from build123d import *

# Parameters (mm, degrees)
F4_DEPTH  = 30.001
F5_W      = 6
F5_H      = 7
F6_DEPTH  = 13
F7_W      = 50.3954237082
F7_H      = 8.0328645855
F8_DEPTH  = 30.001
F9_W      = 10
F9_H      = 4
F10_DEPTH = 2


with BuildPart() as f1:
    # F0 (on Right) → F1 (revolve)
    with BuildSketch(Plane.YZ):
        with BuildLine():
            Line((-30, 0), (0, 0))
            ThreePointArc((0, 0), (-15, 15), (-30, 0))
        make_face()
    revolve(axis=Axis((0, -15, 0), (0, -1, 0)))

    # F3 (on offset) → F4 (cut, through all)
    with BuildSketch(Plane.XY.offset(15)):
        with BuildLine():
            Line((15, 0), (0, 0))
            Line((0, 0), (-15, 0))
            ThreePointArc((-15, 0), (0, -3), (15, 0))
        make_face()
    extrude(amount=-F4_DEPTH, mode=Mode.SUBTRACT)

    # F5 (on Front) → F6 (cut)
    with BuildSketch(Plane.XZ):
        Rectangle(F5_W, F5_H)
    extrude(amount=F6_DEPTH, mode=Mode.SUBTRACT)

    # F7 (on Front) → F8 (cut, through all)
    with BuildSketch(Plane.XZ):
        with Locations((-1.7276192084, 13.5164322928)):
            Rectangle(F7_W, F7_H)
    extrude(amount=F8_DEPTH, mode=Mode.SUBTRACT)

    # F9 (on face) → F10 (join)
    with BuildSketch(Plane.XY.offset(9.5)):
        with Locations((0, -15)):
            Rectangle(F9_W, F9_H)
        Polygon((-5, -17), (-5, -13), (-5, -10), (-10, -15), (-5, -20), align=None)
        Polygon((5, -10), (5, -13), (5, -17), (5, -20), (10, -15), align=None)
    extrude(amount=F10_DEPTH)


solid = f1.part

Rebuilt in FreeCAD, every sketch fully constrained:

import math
import FreeCAD as App
import Part
import Sketcher
from FreeCAD import Vector
Q = App.Units.Quantity


def add_polygon(sketch, points):
    """Adds a closed chain of lines whose ends are joined by coincident constraints."""
    first, n = sketch.GeometryCount, len(points)
    for a, b in zip(points, points[1:] + points[:1]):
        sketch.addGeometry(Part.LineSegment(App.Vector(*a, 0), App.Vector(*b, 0)), False)
    for i in range(n):
        sketch.addConstraint(Sketcher.Constraint("Coincident", first + i, 2, first + (i + 1) % n, 1))

doc = App.newDocument("Part")
body = doc.addObject("PartDesign::Body", "Body")

# Sketch on YZ plane
sketch1 = body.newObject("Sketcher::SketchObject", "Sketch")
sketch1.AttachmentSupport = (doc.getObject("YZ_Plane"), [""])
sketch1.MapMode = "FlatFace"
sketch1.addGeometry([
    Part.LineSegment(Vector(-30, 0, 0), Vector(0, 0, 0)),
    Part.ArcOfCircle(Part.Circle(Vector(-15, 0, 0), Vector(0, 0, 1), 15), math.radians(0), math.radians(180)),
], False)
sketch1.addConstraint([
    Sketcher.Constraint("Coincident", 0, 1, 1, 2),
    Sketcher.Constraint("Coincident", 1, 1, 0, 2),
    Sketcher.Constraint("Horizontal", 0),
    Sketcher.Constraint("Coincident", 1, 1, -1, 1),
    Sketcher.Constraint("PointOnObject", 1, 3, -1),
    Sketcher.Constraint("Radius", 1, Q("15 mm")),
])
revolution = body.newObject("PartDesign::Revolution", "Revolution")
revolution.Profile = sketch1
revolution.ReferenceAxis = (sketch1, ["H_Axis"])
revolution.Angle = 360

# Sketch on XY plane
sketch2 = body.newObject("Sketcher::SketchObject", "Sketch001")
sketch2.AttachmentSupport = (doc.getObject("XY_Plane"), [""])
sketch2.MapMode = "FlatFace"
sketch2.AttachmentOffset = App.Placement(Vector(0, 0, 15), App.Rotation())
sketch2.addGeometry([
    Part.LineSegment(Vector(15, 0, 0), Vector(-15, 0, 0)),
    Part.ArcOfCircle(Part.Circle(Vector(0, 36, 0), Vector(0, 0, 1), 39), math.radians(-113), math.radians(-67)),
], False)
sketch2.addConstraint([
    Sketcher.Constraint("Coincident", 0, 1, 1, 2),
    Sketcher.Constraint("Coincident", 1, 1, 0, 2),
    Sketcher.Constraint("Horizontal", 0),
    Sketcher.Constraint("Symmetric", 0, 1, 1, 1, -1, 1),
    Sketcher.Constraint("Radius", 1, Q("39 mm")),
    Sketcher.Constraint("DistanceX", 0, 2, 0, 1, Q("30 mm")),
])
pocket1 = body.newObject("PartDesign::Pocket", "Pocket")
pocket1.Profile = sketch2
pocket1.Type = "ThroughAll"

# Sketch on XZ plane
sketch3 = body.newObject("Sketcher::SketchObject", "Sketch002")
sketch3.AttachmentSupport = (doc.getObject("XZ_Plane"), [""])
sketch3.MapMode = "FlatFace"
add_polygon(sketch3, [(-3, 4), (-3, -4), (3, -4), (3, 4)])  # lines 0-3
sketch3.addConstraint([
    Sketcher.Constraint("Vertical", 0),
    Sketcher.Constraint("Horizontal", 1),
    Sketcher.Constraint("Vertical", 2),
    Sketcher.Constraint("Horizontal", 3),
    Sketcher.Constraint("Symmetric", 0, 2, 2, 2, -1, 1),
    Sketcher.Constraint("DistanceX", 1, 1, 1, 2, Q("6 mm")),
    Sketcher.Constraint("DistanceY", 0, 2, 0, 1, Q("7 mm")),
])
pocket2 = body.newObject("PartDesign::Pocket", "Pocket001")
pocket2.Profile = sketch3
pocket2.Length = 13
pocket2.Reversed = True

# Sketch on XZ plane
sketch4 = body.newObject("Sketcher::SketchObject", "Sketch003")
sketch4.AttachmentSupport = (doc.getObject("XZ_Plane"), [""])
sketch4.MapMode = "FlatFace"
add_polygon(sketch4, [(-27, 18), (-27, 10), (23, 10), (23, 18)])  # lines 0-3
sketch4.addConstraint([
    Sketcher.Constraint("Vertical", 0),
    Sketcher.Constraint("Horizontal", 1),
    Sketcher.Constraint("Vertical", 2),
    Sketcher.Constraint("Horizontal", 3),
    Sketcher.Constraint("DistanceY", -1, 1, 0, 2, Q("9.5 mm")),
    Sketcher.Constraint("DistanceX", 1, 1, 1, 2, Q("50.395424 mm")),
    Sketcher.Constraint("DistanceY", 0, 2, 0, 1, Q("8.032865 mm")),
    Sketcher.Constraint("DistanceX", 0, 2, -1, 1, Q("26.925331 mm")),
])
pocket3 = body.newObject("PartDesign::Pocket", "Pocket002")
pocket3.Profile = sketch4
pocket3.Type = "ThroughAll"
pocket3.Reversed = True

# Sketch on XY plane
sketch5 = body.newObject("Sketcher::SketchObject", "Sketch004")
sketch5.AttachmentSupport = (doc.getObject("XY_Plane"), [""])
sketch5.MapMode = "FlatFace"
sketch5.AttachmentOffset = App.Placement(Vector(0, 0, 9.5), App.Rotation())
add_polygon(sketch5, [(-5, -17), (5, -17), (5, -20), (10, -15), (5, -10), (5, -13), (-5, -13), (-5, -10), (-10, -15), (-5, -20)])  # lines 0-9
sketch5.addConstraint([
    Sketcher.Constraint("Horizontal", 0),
    Sketcher.Constraint("Vertical", 1),
    Sketcher.Constraint("Vertical", 4),
    Sketcher.Constraint("Horizontal", 5),
    Sketcher.Constraint("Vertical", 6),
    Sketcher.Constraint("Vertical", 9),
    Sketcher.Constraint("Symmetric", 3, 2, 6, 2, -2),
    Sketcher.Constraint("Symmetric", 2, 2, 7, 2, -2),
    Sketcher.Constraint("Symmetric", 1, 2, 8, 2, -2),
    Sketcher.Constraint("Perpendicular", 2, 3),
    Sketcher.Constraint("Perpendicular", 3, 7),
    Sketcher.Constraint("Vertical", 1, 2, 3, 2),
    Sketcher.Constraint("Equal", 1, 4),
    Sketcher.Constraint("DistanceX", 0, 1, 0, 2, Q("10 mm")),
    Sketcher.Constraint("DistanceY", 1, 2, 1, 1, Q("3 mm")),
    Sketcher.Constraint("DistanceY", 0, 2, -1, 1, Q("17 mm")),
    Sketcher.Constraint("DistanceX", -1, 1, 2, 2, Q("10 mm")),
])
pad1 = body.newObject("PartDesign::Pad", "Pad")
pad1.Profile = sketch5
pad1.Length = 2

doc.recompute()
